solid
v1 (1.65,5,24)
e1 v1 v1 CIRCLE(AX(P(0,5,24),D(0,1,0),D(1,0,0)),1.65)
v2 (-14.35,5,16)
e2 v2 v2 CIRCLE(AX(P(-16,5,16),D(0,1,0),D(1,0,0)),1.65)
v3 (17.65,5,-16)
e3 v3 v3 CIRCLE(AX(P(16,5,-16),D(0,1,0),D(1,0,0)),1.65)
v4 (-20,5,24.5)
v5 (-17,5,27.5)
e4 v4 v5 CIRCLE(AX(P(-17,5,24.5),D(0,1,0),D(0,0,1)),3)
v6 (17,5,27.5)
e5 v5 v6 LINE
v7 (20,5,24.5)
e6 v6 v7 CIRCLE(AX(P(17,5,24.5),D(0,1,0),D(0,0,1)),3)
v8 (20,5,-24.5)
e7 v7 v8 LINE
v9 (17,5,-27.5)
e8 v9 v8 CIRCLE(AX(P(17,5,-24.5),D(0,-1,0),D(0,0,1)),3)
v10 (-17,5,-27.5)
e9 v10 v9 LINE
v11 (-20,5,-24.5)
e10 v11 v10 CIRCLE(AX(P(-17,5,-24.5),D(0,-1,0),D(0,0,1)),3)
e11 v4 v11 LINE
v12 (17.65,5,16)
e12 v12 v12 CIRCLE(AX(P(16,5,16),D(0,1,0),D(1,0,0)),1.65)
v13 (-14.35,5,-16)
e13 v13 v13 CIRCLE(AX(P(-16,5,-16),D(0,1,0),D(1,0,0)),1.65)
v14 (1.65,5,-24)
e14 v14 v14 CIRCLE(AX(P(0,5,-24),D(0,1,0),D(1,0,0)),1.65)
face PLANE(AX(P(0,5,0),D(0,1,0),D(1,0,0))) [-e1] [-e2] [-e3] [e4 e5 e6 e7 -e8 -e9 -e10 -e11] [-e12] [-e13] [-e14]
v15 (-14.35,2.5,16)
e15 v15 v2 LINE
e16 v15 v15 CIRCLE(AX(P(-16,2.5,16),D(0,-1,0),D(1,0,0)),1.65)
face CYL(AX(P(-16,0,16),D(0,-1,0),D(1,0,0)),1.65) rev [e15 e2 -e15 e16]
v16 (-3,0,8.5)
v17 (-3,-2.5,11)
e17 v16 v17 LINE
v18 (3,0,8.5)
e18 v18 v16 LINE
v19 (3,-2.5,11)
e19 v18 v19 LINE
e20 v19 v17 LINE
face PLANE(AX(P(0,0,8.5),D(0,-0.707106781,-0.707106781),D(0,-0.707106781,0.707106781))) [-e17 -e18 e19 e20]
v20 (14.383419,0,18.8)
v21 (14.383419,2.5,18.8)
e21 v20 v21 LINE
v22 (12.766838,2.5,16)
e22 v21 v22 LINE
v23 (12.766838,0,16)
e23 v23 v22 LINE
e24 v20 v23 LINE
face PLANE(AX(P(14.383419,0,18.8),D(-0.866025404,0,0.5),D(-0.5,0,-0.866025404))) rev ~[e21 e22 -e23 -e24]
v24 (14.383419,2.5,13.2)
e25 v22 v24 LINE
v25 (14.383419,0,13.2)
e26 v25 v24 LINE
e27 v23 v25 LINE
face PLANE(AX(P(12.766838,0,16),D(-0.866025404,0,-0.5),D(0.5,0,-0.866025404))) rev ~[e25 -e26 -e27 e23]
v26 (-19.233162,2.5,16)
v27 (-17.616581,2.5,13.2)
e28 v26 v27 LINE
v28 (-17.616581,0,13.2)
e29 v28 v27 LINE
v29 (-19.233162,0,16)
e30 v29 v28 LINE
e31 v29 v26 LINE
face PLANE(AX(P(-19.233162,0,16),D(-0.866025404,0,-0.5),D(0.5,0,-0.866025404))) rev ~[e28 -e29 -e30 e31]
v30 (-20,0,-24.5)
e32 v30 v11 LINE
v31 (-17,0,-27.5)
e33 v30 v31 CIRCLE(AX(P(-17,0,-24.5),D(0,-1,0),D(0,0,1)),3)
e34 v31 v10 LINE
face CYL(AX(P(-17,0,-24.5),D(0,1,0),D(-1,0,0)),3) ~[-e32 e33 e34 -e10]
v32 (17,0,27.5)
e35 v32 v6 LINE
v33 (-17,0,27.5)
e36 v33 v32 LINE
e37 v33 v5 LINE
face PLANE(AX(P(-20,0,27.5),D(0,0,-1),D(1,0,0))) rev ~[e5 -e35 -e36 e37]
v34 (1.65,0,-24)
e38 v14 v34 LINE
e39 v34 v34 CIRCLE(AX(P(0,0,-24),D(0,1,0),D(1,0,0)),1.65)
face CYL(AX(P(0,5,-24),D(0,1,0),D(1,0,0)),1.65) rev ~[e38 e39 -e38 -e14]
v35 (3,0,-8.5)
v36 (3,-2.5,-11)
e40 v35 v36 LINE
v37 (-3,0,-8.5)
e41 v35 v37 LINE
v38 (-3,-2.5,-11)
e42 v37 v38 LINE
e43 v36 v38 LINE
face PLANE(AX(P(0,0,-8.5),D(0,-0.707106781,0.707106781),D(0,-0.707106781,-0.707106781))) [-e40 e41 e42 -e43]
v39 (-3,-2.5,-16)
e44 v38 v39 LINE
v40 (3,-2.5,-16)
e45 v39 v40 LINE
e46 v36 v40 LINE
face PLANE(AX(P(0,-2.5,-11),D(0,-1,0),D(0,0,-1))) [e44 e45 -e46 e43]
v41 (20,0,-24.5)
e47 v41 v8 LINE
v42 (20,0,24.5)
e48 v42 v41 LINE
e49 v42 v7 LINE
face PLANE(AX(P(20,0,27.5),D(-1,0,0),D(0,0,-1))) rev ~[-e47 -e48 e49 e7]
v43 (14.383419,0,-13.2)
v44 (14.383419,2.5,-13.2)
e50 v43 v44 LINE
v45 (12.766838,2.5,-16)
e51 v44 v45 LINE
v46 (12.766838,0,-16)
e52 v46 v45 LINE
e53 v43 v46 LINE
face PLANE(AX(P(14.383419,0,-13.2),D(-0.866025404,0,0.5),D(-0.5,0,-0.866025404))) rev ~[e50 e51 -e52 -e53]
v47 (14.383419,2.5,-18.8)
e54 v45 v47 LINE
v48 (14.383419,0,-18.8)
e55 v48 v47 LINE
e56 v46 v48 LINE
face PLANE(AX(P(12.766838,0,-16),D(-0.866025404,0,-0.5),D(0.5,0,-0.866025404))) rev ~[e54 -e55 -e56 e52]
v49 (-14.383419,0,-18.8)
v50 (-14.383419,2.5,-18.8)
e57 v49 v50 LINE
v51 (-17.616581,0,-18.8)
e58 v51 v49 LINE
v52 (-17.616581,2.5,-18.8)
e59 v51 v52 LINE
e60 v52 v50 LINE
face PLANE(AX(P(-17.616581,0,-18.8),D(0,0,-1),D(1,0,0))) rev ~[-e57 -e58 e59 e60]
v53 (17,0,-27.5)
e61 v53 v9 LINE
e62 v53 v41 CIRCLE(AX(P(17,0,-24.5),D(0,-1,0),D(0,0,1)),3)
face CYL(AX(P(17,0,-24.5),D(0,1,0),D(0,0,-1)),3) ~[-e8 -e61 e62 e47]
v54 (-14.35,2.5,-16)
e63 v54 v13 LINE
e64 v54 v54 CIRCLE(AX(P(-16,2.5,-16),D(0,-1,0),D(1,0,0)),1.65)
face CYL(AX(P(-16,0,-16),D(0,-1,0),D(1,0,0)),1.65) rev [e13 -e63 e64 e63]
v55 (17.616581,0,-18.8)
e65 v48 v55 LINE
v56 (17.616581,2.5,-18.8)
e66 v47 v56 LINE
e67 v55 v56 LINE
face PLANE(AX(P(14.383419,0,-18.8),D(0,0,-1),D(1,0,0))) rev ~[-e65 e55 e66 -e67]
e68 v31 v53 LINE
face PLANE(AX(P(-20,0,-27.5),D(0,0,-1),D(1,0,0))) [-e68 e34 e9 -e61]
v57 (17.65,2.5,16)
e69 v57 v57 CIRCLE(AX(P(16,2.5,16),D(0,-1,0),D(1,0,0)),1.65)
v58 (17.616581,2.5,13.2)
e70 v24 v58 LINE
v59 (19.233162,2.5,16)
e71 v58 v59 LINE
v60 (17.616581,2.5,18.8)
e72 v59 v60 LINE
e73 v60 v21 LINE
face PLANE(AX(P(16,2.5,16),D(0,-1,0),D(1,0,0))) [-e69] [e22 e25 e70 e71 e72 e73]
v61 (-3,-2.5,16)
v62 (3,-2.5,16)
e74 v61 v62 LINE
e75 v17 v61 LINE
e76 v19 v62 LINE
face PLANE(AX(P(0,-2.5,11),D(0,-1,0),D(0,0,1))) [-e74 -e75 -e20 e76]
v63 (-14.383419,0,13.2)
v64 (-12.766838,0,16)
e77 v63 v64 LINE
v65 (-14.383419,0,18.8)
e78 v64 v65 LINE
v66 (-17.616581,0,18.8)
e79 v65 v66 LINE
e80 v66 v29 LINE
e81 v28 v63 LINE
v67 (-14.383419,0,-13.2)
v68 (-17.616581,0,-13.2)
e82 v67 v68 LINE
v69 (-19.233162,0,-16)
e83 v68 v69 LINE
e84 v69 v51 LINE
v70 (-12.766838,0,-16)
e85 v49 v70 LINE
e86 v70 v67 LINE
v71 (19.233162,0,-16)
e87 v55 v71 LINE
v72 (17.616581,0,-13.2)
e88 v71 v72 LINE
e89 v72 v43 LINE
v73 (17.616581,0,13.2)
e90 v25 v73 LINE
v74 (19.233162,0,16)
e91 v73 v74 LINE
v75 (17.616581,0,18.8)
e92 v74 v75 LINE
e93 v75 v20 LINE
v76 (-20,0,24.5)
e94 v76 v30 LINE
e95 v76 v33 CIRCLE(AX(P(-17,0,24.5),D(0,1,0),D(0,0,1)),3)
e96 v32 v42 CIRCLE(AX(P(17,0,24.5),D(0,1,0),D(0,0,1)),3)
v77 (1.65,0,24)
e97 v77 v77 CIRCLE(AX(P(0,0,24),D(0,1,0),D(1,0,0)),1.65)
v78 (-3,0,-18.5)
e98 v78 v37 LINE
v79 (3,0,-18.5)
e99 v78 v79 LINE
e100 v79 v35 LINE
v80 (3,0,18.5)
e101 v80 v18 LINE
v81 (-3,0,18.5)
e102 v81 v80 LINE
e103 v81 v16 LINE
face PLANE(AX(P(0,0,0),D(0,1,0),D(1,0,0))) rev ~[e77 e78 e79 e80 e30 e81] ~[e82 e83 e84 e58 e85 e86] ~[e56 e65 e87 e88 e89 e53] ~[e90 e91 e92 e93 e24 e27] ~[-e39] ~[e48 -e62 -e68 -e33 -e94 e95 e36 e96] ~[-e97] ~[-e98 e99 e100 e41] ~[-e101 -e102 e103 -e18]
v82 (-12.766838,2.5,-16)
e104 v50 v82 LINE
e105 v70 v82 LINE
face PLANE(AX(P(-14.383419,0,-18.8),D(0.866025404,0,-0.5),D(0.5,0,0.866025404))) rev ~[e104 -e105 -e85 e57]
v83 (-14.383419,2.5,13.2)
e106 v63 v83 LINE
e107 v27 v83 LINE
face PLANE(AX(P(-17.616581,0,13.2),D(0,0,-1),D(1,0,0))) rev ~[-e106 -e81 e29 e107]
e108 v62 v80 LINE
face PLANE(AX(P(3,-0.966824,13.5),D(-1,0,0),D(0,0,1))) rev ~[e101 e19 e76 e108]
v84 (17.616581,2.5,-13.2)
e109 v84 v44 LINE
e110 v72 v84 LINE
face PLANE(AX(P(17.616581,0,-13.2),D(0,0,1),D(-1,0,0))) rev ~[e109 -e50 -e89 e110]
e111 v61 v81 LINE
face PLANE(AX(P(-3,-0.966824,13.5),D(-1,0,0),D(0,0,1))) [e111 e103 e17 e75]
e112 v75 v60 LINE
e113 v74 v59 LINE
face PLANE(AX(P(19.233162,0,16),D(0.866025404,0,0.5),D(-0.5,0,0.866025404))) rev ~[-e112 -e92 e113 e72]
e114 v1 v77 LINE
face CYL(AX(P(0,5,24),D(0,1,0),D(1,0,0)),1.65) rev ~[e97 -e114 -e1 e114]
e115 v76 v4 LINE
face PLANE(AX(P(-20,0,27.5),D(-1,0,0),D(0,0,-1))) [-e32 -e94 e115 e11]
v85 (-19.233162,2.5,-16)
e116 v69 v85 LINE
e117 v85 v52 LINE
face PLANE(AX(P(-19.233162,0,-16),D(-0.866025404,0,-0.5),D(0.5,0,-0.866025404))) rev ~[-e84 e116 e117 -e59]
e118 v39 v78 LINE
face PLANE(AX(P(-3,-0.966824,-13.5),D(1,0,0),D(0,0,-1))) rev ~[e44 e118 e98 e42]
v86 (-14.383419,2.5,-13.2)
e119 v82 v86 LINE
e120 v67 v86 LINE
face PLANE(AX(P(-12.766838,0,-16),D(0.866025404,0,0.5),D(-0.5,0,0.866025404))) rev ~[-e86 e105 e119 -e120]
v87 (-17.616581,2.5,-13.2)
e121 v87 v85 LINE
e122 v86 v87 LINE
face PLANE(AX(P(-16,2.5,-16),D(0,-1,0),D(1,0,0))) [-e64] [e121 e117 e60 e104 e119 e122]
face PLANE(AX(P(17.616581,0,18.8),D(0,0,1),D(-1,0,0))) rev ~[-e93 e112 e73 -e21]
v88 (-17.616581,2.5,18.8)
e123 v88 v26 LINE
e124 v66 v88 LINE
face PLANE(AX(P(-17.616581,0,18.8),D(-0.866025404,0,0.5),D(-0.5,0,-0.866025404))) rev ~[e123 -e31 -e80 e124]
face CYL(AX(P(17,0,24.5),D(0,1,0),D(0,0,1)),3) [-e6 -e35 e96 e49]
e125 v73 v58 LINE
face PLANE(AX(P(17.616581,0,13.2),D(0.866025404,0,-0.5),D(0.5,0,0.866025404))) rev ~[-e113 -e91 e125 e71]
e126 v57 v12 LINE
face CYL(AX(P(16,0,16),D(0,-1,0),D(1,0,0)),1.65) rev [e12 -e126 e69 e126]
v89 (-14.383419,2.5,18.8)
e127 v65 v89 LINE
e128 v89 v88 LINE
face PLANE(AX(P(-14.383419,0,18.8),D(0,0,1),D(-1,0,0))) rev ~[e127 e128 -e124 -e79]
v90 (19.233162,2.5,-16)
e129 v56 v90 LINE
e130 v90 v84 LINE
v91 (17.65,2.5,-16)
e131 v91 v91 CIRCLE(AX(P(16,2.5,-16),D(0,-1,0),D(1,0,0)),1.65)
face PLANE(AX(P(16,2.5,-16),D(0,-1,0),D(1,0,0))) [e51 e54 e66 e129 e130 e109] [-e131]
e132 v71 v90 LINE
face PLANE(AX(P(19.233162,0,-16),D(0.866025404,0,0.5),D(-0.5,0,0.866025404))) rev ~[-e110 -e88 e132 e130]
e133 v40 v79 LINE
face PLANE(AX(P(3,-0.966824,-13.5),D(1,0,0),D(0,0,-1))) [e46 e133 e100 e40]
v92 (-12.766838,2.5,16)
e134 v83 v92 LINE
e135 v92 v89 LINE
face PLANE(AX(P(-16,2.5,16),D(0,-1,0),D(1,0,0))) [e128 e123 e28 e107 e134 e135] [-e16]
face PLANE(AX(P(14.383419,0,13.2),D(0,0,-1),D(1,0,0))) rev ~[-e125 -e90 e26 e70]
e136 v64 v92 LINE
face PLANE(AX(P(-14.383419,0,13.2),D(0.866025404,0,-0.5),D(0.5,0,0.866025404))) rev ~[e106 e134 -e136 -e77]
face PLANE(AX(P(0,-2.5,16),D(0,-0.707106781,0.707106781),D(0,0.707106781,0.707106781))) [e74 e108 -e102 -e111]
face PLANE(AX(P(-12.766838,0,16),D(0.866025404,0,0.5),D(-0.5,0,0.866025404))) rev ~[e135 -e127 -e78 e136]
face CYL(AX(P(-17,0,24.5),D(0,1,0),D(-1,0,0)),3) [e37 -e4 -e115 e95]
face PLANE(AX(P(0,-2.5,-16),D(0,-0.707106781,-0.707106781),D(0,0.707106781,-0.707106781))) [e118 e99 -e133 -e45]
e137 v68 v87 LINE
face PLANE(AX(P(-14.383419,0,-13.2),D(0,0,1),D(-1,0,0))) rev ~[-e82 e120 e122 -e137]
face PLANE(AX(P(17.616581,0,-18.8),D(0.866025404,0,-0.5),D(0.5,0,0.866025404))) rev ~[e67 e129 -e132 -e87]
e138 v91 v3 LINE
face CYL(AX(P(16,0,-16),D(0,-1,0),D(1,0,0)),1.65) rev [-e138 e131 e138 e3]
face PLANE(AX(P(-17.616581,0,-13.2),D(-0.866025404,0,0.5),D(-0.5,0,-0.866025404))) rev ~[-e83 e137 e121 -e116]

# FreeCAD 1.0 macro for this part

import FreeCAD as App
import Part
import Sketcher

V = App.Vector
Q = App.Units.Quantity


def edges_at(feature, points):
    """Names of the edges that pass closest to the given points."""
    edges = feature.Shape.Edges
    near = lambda p: min(range(len(edges)), key=lambda i: edges[i].distToShape(Part.Vertex(*p))[0])
    return sorted({f"Edge{near(p) + 1}" for p in points})

doc = App.newDocument("Part")
body = doc.addObject("PartDesign::Body", "Body")

sketch1 = body.newObject("Sketcher::SketchObject", "Sketch")
sketch1.AttachmentSupport = (doc.getObject("XZ_Plane"), [""])
sketch1.MapMode = "FlatFace"
sketch1.addGeometry(Part.LineSegment(V(-20, -27.5, 0), V(-20, 27.5, 0)), False)
sketch1.addGeometry(Part.LineSegment(V(-20, 27.5, 0), V(20, 27.5, 0)), False)
sketch1.addGeometry(Part.LineSegment(V(20, 27.5, 0), V(20, -27.5, 0)), False)
sketch1.addGeometry(Part.LineSegment(V(20, -27.5, 0), V(-20, -27.5, 0)), False)
sketch1.addGeometry(Part.Circle(V(-16, 16, 0), V(0, 0, 1), 1.6), False)
sketch1.addGeometry(Part.Circle(V(16, 16, 0), V(0, 0, 1), 1.6), False)
sketch1.addGeometry(Part.Circle(V(-16, -16, 0), V(0, 0, 1), 1.6), False)
sketch1.addGeometry(Part.Circle(V(16, -16, 0), V(0, 0, 1), 1.6), False)
sketch1.addConstraint(Sketcher.Constraint("Coincident", 0, 2, 1, 1))
sketch1.addConstraint(Sketcher.Constraint("Coincident", 1, 2, 2, 1))
sketch1.addConstraint(Sketcher.Constraint("Coincident", 2, 2, 3, 1))
sketch1.addConstraint(Sketcher.Constraint("Coincident", 3, 2, 0, 1))
sketch1.addConstraint(Sketcher.Constraint("Vertical", 0))
sketch1.addConstraint(Sketcher.Constraint("Horizontal", 1))
sketch1.addConstraint(Sketcher.Constraint("Vertical", 2))
sketch1.addConstraint(Sketcher.Constraint("Horizontal", 3))
sketch1.addConstraint(Sketcher.Constraint("Equal", 4, 5))
sketch1.addConstraint(Sketcher.Constraint("Equal", 5, 6))
sketch1.addConstraint(Sketcher.Constraint("Equal", 6, 7))
sketch1.addConstraint(Sketcher.Constraint("Symmetric", 5, 3, 6, 3, -1, 1))
sketch1.addConstraint(Sketcher.Constraint("Symmetric", 4, 3, 7, 3, -1, 1))
sketch1.addConstraint(Sketcher.Constraint("Symmetric", 0, 2, 2, 2, -1, 1))
sketch1.addConstraint(Sketcher.Constraint("Symmetric", 4, 3, 5, 3, -2))
sketch1.addConstraint(Sketcher.Constraint("Diameter", 4, Q("3.3 mm")))
sketch1.addConstraint(Sketcher.Constraint("DistanceX", 1, 1, 1, 2, Q("40 mm")))
sketch1.addConstraint(Sketcher.Constraint("DistanceY", 0, 1, 0, 2, Q("55 mm")))
sketch1.addConstraint(Sketcher.Constraint("DistanceX", 4, 3, -1, 1, Q("16 mm")))
sketch1.addConstraint(Sketcher.Constraint("DistanceY", -1, 1, 4, 3, Q("16 mm")))
pad1 = body.newObject("PartDesign::Pad", "Pad")
pad1.Profile = sketch1
pad1.Length = 5
pad1.Reversed = True

sketch2 = body.newObject("Sketcher::SketchObject", "Sketch001")
sketch2.AttachmentSupport = (doc.getObject("YZ_Plane"), [""])
sketch2.MapMode = "FlatFace"
sketch2.addGeometry(Part.LineSegment(V(0, 8.5, 0), V(0, 18.5, 0)), False)
sketch2.addGeometry(Part.LineSegment(V(0, 18.5, 0), V(-2.5, 16, 0)), False)
sketch2.addGeometry(Part.LineSegment(V(-2.5, 16, 0), V(-2.5, 11, 0)), False)
sketch2.addGeometry(Part.LineSegment(V(-2.5, 11, 0), V(0, 8.5, 0)), False)
sketch2.addGeometry(Part.LineSegment(V(-2.5, -11, 0), V(-2.5, -16, 0)), False)
sketch2.addGeometry(Part.LineSegment(V(-2.5, -16, 0), V(0, -18.5, 0)), False)
sketch2.addGeometry(Part.LineSegment(V(0, -18.5, 0), V(0, -8.5, 0)), False)
sketch2.addGeometry(Part.LineSegment(V(0, -8.5, 0), V(-2.5, -11, 0)), False)
sketch2.addConstraint(Sketcher.Constraint("Coincident", 0, 2, 1, 1))
sketch2.addConstraint(Sketcher.Constraint("Coincident", 1, 2, 2, 1))
sketch2.addConstraint(Sketcher.Constraint("Coincident", 2, 2, 3, 1))
sketch2.addConstraint(Sketcher.Constraint("Coincident", 3, 2, 0, 1))
sketch2.addConstraint(Sketcher.Constraint("Coincident", 4, 2, 5, 1))
sketch2.addConstraint(Sketcher.Constraint("Coincident", 5, 2, 6, 1))
sketch2.addConstraint(Sketcher.Constraint("Coincident", 6, 2, 7, 1))
sketch2.addConstraint(Sketcher.Constraint("Coincident", 7, 2, 4, 1))
sketch2.addConstraint(Sketcher.Constraint("Vertical", 0))
sketch2.addConstraint(Sketcher.Constraint("Vertical", 2))
sketch2.addConstraint(Sketcher.Constraint("Vertical", 4))
sketch2.addConstraint(Sketcher.Constraint("Vertical", 6))
sketch2.addConstraint(Sketcher.Constraint("Symmetric", 0, 2, 5, 2, -1, 1))
sketch2.addConstraint(Sketcher.Constraint("Symmetric", 1, 2, 4, 2, -1))
sketch2.addConstraint(Sketcher.Constraint("Symmetric", 3, 2, 6, 2, -1))
sketch2.addConstraint(Sketcher.Constraint("Perpendicular", 1, 3))
sketch2.addConstraint(Sketcher.Constraint("Parallel", 3, 5))
sketch2.addConstraint(Sketcher.Constraint("Perpendicular", 5, 7))
sketch2.addConstraint(Sketcher.Constraint("DistanceY", 0, 1, 0, 2, Q("10 mm")))
sketch2.addConstraint(Sketcher.Constraint("DistanceY", 2, 2, 2, 1, Q("5 mm")))
sketch2.addConstraint(Sketcher.Constraint("DistanceY", -1, 1, 1, 2, Q("16 mm")))
pad2 = body.newObject("PartDesign::Pad", "Pad001")
pad2.Profile = sketch2
pad2.Length = 6
pad2.Midplane = True

sketch3 = body.newObject("Sketcher::SketchObject", "Sketch002")
sketch3.AttachmentSupport = (doc.getObject("XZ_Plane"), [""])
sketch3.MapMode = "FlatFace"
sketch3.AttachmentOffset = App.Placement(V(0, 0, -5), App.Rotation())
sketch3.addGeometry(Part.Circle(V(0, 24, 0), V(0, 0, 1), 1.6), False)
sketch3.addGeometry(Part.Circle(V(0, -24, 0), V(0, 0, 1), 1.6), False)
sketch3.addConstraint(Sketcher.Constraint("Equal", 0, 1))
sketch3.addConstraint(Sketcher.Constraint("Symmetric", 0, 3, 1, 3, -1, 1))
sketch3.addConstraint(Sketcher.Constraint("PointOnObject", 0, 3, -2))
sketch3.addConstraint(Sketcher.Constraint("Diameter", 0, Q("3.3 mm")))
sketch3.addConstraint(Sketcher.Constraint("DistanceY", -1, 1, 0, 3, Q("24 mm")))
pocket1 = body.newObject("PartDesign::Pocket", "Pocket")
pocket1.Profile = sketch3
pocket1.Type = "ThroughAll"
pocket1.Reversed = True

sketch4 = body.newObject("Sketcher::SketchObject", "Sketch003")
sketch4.AttachmentSupport = (doc.getObject("XZ_Plane"), [""])
sketch4.MapMode = "FlatFace"
sketch4.addGeometry(Part.LineSegment(V(-14.4, 18.8, 0), V(-17.6, 18.8, 0)), False)
sketch4.addGeometry(Part.LineSegment(V(-17.6, 18.8, 0), V(-19.2, 16, 0)), False)
sketch4.addGeometry(Part.LineSegment(V(-19.2, 16, 0), V(-17.6, 13.2, 0)), False)
sketch4.addGeometry(Part.LineSegment(V(-17.6, 13.2, 0), V(-14.4, 13.2, 0)), False)
sketch4.addGeometry(Part.LineSegment(V(-14.4, 13.2, 0), V(-12.8, 16, 0)), False)
sketch4.addGeometry(Part.LineSegment(V(-12.8, 16, 0), V(-14.4, 18.8, 0)), False)
sketch4.addGeometry(Part.LineSegment(V(17.6, 18.8, 0), V(14.4, 18.8, 0)), False)
sketch4.addGeometry(Part.LineSegment(V(14.4, 18.8, 0), V(12.8, 16, 0)), False)
sketch4.addGeometry(Part.LineSegment(V(12.8, 16, 0), V(14.4, 13.2, 0)), False)
sketch4.addGeometry(Part.LineSegment(V(14.4, 13.2, 0), V(17.6, 13.2, 0)), False)
sketch4.addGeometry(Part.LineSegment(V(17.6, 13.2, 0), V(19.2, 16, 0)), False)
sketch4.addGeometry(Part.LineSegment(V(19.2, 16, 0), V(17.6, 18.8, 0)), False)
sketch4.addGeometry(Part.LineSegment(V(14.4, -13.2, 0), V(12.8, -16, 0)), False)
sketch4.addGeometry(Part.LineSegment(V(12.8, -16, 0), V(14.4, -18.8, 0)), False)
sketch4.addGeometry(Part.LineSegment(V(14.4, -18.8, 0), V(17.6, -18.8, 0)), False)
sketch4.addGeometry(Part.LineSegment(V(17.6, -18.8, 0), V(19.2, -16, 0)), False)
sketch4.addGeometry(Part.LineSegment(V(19.2, -16, 0), V(17.6, -13.2, 0)), False)
sketch4.addGeometry(Part.LineSegment(V(17.6, -13.2, 0), V(14.4, -13.2, 0)), False)
sketch4.addGeometry(Part.LineSegment(V(-17.6, -13.2, 0), V(-19.2, -16, 0)), False)
sketch4.addGeometry(Part.LineSegment(V(-19.2, -16, 0), V(-17.6, -18.8, 0)), False)
sketch4.addGeometry(Part.LineSegment(V(-17.6, -18.8, 0), V(-14.4, -18.8, 0)), False)
sketch4.addGeometry(Part.LineSegment(V(-14.4, -18.8, 0), V(-12.8, -16, 0)), False)
sketch4.addGeometry(Part.LineSegment(V(-12.8, -16, 0), V(-14.4, -13.2, 0)), False)
sketch4.addGeometry(Part.LineSegment(V(-14.4, -13.2, 0), V(-17.6, -13.2, 0)), False)
sketch4.addConstraint(Sketcher.Constraint("Coincident", 0, 2, 1, 1))
sketch4.addConstraint(Sketcher.Constraint("Coincident", 1, 2, 2, 1))
sketch4.addConstraint(Sketcher.Constraint("Coincident", 2, 2, 3, 1))
sketch4.addConstraint(Sketcher.Constraint("Coincident", 3, 2, 4, 1))
sketch4.addConstraint(Sketcher.Constraint("Coincident", 4, 2, 5, 1))
sketch4.addConstraint(Sketcher.Constraint("Coincident", 5, 2, 0, 1))
sketch4.addConstraint(Sketcher.Constraint("Coincident", 6, 2, 7, 1))
sketch4.addConstraint(Sketcher.Constraint("Coincident", 7, 2, 8, 1))
sketch4.addConstraint(Sketcher.Constraint("Coincident", 8, 2, 9, 1))
sketch4.addConstraint(Sketcher.Constraint("Coincident", 9, 2, 10, 1))
sketch4.addConstraint(Sketcher.Constraint("Coincident", 10, 2, 11, 1))
sketch4.addConstraint(Sketcher.Constraint("Coincident", 11, 2, 6, 1))
sketch4.addConstraint(Sketcher.Constraint("Coincident", 12, 2, 13, 1))
sketch4.addConstraint(Sketcher.Constraint("Coincident", 13, 2, 14, 1))
sketch4.addConstraint(Sketcher.Constraint("Coincident", 14, 2, 15, 1))
sketch4.addConstraint(Sketcher.Constraint("Coincident", 15, 2, 16, 1))
sketch4.addConstraint(Sketcher.Constraint("Coincident", 16, 2, 17, 1))
sketch4.addConstraint(Sketcher.Constraint("Coincident", 17, 2, 12, 1))
sketch4.addConstraint(Sketcher.Constraint("Coincident", 18, 2, 19, 1))
sketch4.addConstraint(Sketcher.Constraint("Coincident", 19, 2, 20, 1))
sketch4.addConstraint(Sketcher.Constraint("Coincident", 20, 2, 21, 1))
sketch4.addConstraint(Sketcher.Constraint("Coincident", 21, 2, 22, 1))
sketch4.addConstraint(Sketcher.Constraint("Coincident", 22, 2, 23, 1))
sketch4.addConstraint(Sketcher.Constraint("Coincident", 23, 2, 18, 1))
sketch4.addConstraint(Sketcher.Constraint("Horizontal", 0))
sketch4.addConstraint(Sketcher.Constraint("Horizontal", 3))
sketch4.addConstraint(Sketcher.Constraint("Horizontal", 6))
sketch4.addConstraint(Sketcher.Constraint("Horizontal", 9))
sketch4.addConstraint(Sketcher.Constraint("Horizontal", 14))
sketch4.addConstraint(Sketcher.Constraint("Horizontal", 17))
sketch4.addConstraint(Sketcher.Constraint("Horizontal", 20))
sketch4.addConstraint(Sketcher.Constraint("Horizontal", 23))
sketch4.addConstraint(Sketcher.Constraint("Symmetric", 4, 2, 12, 2, -1, 1))
sketch4.addConstraint(Sketcher.Constraint("Symmetric", 5, 2, 13, 2, -1, 1))
sketch4.addConstraint(Sketcher.Constraint("Symmetric", 1, 2, 15, 2, -1, 1))
sketch4.addConstraint(Sketcher.Constraint("Symmetric", 2, 2, 16, 2, -1, 1))
sketch4.addConstraint(Sketcher.Constraint("Symmetric", 10, 2, 18, 2, -1, 1))
sketch4.addConstraint(Sketcher.Constraint("Symmetric", 11, 2, 19, 2, -1, 1))
sketch4.addConstraint(Sketcher.Constraint("Symmetric", 7, 2, 21, 2, -1, 1))
sketch4.addConstraint(Sketcher.Constraint("Symmetric", 8, 2, 22, 2, -1, 1))
sketch4.addConstraint(Sketcher.Constraint("Symmetric", 5, 2, 6, 2, -2))
sketch4.addConstraint(Sketcher.Constraint("Symmetric", 4, 2, 7, 2, -2))
sketch4.addConstraint(Sketcher.Constraint("Symmetric", 3, 2, 8, 2, -2))
sketch4.addConstraint(Sketcher.Constraint("Symmetric", 1, 2, 10, 2, -2))
sketch4.addConstraint(Sketcher.Constraint("Parallel", 1, 4))
sketch4.addConstraint(Sketcher.Constraint("Parallel", 2, 5))
sketch4.addConstraint(Sketcher.Constraint("Parallel", 4, 7))
sketch4.addConstraint(Sketcher.Constraint("Parallel", 7, 10))
sketch4.addConstraint(Sketcher.Constraint("Parallel", 8, 11))
sketch4.addConstraint(Sketcher.Constraint("Parallel", 10, 12))
sketch4.addConstraint(Sketcher.Constraint("Parallel", 12, 15))
sketch4.addConstraint(Sketcher.Constraint("Parallel", 15, 18))
sketch4.addConstraint(Sketcher.Constraint("Parallel", 18, 21))
sketch4.addConstraint(Sketcher.Constraint("Horizontal", 1, 2, 4, 2))
sketch4.addConstraint(Sketcher.Constraint("Vertical", 0, 2, 2, 2))
sketch4.addConstraint(Sketcher.Constraint("Angle", 1, Q("-120 deg")))
sketch4.addConstraint(Sketcher.Constraint("DistanceY", -1, 1, 1, 2, Q("16 mm")))
sketch4.addConstraint(Sketcher.Constraint("DistanceX", 0, 2, 6, 2, Q("32 mm")))
sketch4.addConstraint(Sketcher.Constraint("DistanceY", -1, 1, 0, 2, Q("18.8 mm")))
sketch4.addConstraint(Sketcher.Constraint("DistanceX", 0, 2, 0, 1, Q("3.233162 mm")))
pocket2 = body.newObject("PartDesign::Pocket", "Pocket001")
pocket2.Profile = sketch4
pocket2.Length = 2.5
doc.recompute()

fillet = body.newObject("PartDesign::Fillet", "Fillet")
fillet.Base = (pocket2, edges_at(pocket2, [
    (20, 2.5, 27.5),
    (-20, 2.5, 27.5),
    (-20, 2.5, -27.5),
    (20, 2.5, -27.5),
]))
fillet.Radius = 3

doc.recompute()
